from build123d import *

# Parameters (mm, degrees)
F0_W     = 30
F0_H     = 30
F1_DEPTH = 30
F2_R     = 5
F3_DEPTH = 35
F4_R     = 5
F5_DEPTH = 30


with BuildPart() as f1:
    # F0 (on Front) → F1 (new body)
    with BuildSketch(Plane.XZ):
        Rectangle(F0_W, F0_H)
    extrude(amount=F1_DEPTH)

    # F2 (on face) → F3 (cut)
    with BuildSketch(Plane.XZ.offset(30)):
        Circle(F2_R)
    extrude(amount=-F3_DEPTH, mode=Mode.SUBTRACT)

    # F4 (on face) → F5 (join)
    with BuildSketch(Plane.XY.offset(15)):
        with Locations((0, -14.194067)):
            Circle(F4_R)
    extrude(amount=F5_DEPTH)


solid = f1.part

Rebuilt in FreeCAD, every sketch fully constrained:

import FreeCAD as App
import Part
import Sketcher
from FreeCAD import Vector

doc = App.newDocument("Part")
body = doc.addObject("PartDesign::Body", "Body")

sketch1 = body.newObject("Sketcher::SketchObject", "Sketch")
sketch1.AttachmentSupport = (doc.getObject("XZ_Plane"), [""])
sketch1.MapMode = "FlatFace"
sketch1.addGeometry([
    Part.LineSegment(Vector(-15, 15, 0), Vector(-15, -15, 0)),
    Part.LineSegment(Vector(-15, -15, 0), Vector(15, -15, 0)),
    Part.LineSegment(Vector(15, -15, 0), Vector(15, 15, 0)),
    Part.LineSegment(Vector(15, 15, 0), Vector(-15, 15, 0)),
], False)
sketch1.addConstraint([
    Sketcher.Constraint("Coincident", 0, 2, 1, 1),
    Sketcher.Constraint("Coincident", 1, 2, 2, 1),
    Sketcher.Constraint("Coincident", 2, 2, 3, 1),
    Sketcher.Constraint("Coincident", 3, 2, 0, 1),
    Sketcher.Constraint("Vertical", 0),
    Sketcher.Constraint("Horizontal", 1),
    Sketcher.Constraint("Vertical", 2),
    Sketcher.Constraint("Horizontal", 3),
    Sketcher.Constraint("Symmetric", 0, 2, 2, 2, -1, 1),
    Sketcher.Constraint("Equal", 3, 0),
    Sketcher.Constraint("DistanceX", 1, 1, 1, 2, 30.0),
])
pad1 = body.newObject("PartDesign::Pad", "Pad")
pad1.Profile = sketch1
pad1.Length = 30

sketch2 = body.newObject("Sketcher::SketchObject", "Sketch001")
sketch2.AttachmentSupport = (doc.getObject("XZ_Plane"), [""])
sketch2.MapMode = "FlatFace"
sketch2.AttachmentOffset = App.Placement(Vector(0, 0, 30), App.Rotation())
sketch2.addGeometry(Part.Circle(Vector(0, 0, 0), Vector(0, 0, 1), 5), False)
sketch2.addConstraint([
    Sketcher.Constraint("Coincident", 0, 3, -1, 1),
    Sketcher.Constraint("Diameter", 0, 10.0),
])
pocket1 = body.newObject("PartDesign::Pocket", "Pocket")
pocket1.Profile = sketch2
pocket1.Length = 35

sketch3 = body.newObject("Sketcher::SketchObject", "Sketch002")
sketch3.AttachmentSupport = (doc.getObject("XY_Plane"), [""])
sketch3.MapMode = "FlatFace"
sketch3.AttachmentOffset = App.Placement(Vector(0, 0, 15), App.Rotation())
sketch3.addGeometry(Part.Circle(Vector(0, -14.194067, 0), Vector(0, 0, 1), 5), False)
sketch3.addConstraint([
    Sketcher.Constraint("PointOnObject", 0, 3, -2),
    Sketcher.Constraint("Diameter", 0, 10.0),
    Sketcher.Constraint("DistanceY", 0, 3, -1, 1, 14.194067),
])
pad2 = body.newObject("PartDesign::Pad", "Pad001")
pad2.Profile = sketch3
pad2.Length = 30

doc.recompute()
